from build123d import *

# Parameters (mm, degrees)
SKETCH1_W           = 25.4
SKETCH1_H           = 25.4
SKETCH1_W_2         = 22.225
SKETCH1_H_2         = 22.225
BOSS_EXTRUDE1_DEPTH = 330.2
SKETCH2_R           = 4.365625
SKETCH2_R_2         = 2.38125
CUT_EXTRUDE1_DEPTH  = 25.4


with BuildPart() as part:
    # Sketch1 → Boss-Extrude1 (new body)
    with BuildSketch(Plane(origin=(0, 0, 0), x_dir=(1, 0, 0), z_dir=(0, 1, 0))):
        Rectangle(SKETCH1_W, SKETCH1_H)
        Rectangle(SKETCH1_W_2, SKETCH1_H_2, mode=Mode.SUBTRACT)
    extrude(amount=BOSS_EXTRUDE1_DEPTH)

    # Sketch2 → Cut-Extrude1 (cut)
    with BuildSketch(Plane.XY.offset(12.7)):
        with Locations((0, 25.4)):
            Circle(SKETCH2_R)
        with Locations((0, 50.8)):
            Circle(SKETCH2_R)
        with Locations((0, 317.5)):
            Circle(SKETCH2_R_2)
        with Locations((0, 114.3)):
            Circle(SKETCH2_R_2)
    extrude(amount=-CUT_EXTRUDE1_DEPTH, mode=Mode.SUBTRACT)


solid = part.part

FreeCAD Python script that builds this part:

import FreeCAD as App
import Part
import Sketcher
from FreeCAD import Vector
Q = App.Units.Quantity


def add_polygon(sketch, points):
    """Adds a closed chain of lines whose ends are joined by coincident constraints."""
    first, n = sketch.GeometryCount, len(points)
    for a, b in zip(points, points[1:] + points[:1]):
        sketch.addGeometry(Part.LineSegment(App.Vector(*a, 0), App.Vector(*b, 0)), False)
    for i in range(n):
        sketch.addConstraint(Sketcher.Constraint("Coincident", first + i, 2, first + (i + 1) % n, 1))

doc = App.newDocument("Part")
body = doc.addObject("PartDesign::Body", "Body")

sketch1 = body.newObject("Sketcher::SketchObject", "Sketch")
sketch1.AttachmentSupport = (doc.getObject("XZ_Plane"), [""])
sketch1.MapMode = "FlatFace"
add_polygon(sketch1, [(-13, -13), (-13, 13), (13, 13), (13, -13)])
add_polygon(sketch1, [(11, 11), (-11, 11), (-11, -11), (11, -11)])
sketch1.addConstraint([
    Sketcher.Constraint("Vertical", 0),
    Sketcher.Constraint("Horizontal", 1),
    Sketcher.Constraint("Vertical", 2),
    Sketcher.Constraint("Horizontal", 3),
    Sketcher.Constraint("Horizontal", 4),
    Sketcher.Constraint("Vertical", 5),
    Sketcher.Constraint("Horizontal", 6),
    Sketcher.Constraint("Vertical", 7),
    Sketcher.Constraint("Symmetric", 0, 2, 2, 2, -1, 1),
    Sketcher.Constraint("Symmetric", 4, 2, 6, 2, -1, 1),
    Sketcher.Constraint("Equal", 3, 0),
    Sketcher.Constraint("Equal", 6, 5),
    Sketcher.Constraint("DistanceX", 1, 1, 1, 2, Q("1 in")),
    Sketcher.Constraint("DistanceX", 4, 2, 4, 1, Q("0.875 in")),
])
pad1 = body.newObject("PartDesign::Pad", "Pad")
pad1.Profile = sketch1
pad1.Length = Q("13 in")
pad1.Reversed = True

sketch2 = body.newObject("Sketcher::SketchObject", "Sketch001")
sketch2.AttachmentSupport = (doc.getObject("XY_Plane"), [""])
sketch2.MapMode = "FlatFace"
sketch2.AttachmentOffset = App.Placement(Vector(0, 0, 0.5 * 25.4), App.Rotation())
sketch2.addGeometry([
    Part.Circle(Vector(0, 25.4, 0), Vector(0, 0, 1), 4.4),
    Part.Circle(Vector(0, 50.8, 0), Vector(0, 0, 1), 4.4),
    Part.Circle(Vector(0, 317.5, 0), Vector(0, 0, 1), 2.4),
    Part.Circle(Vector(0, 114.3, 0), Vector(0, 0, 1), 2.4),
], False)
sketch2.addConstraint([
    Sketcher.Constraint("Equal", 0, 1),
    Sketcher.Constraint("Equal", 2, 3),
    Sketcher.Constraint("PointOnObject", 0, 3, -2),
    Sketcher.Constraint("PointOnObject", 1, 3, -2),
    Sketcher.Constraint("PointOnObject", 2, 3, -2),
    Sketcher.Constraint("PointOnObject", 3, 3, -2),
    Sketcher.Constraint("Diameter", 0, Q("0.34375 in")),
    Sketcher.Constraint("Diameter", 2, Q("0.1875 in")),
    Sketcher.Constraint("DistanceY", -1, 1, 0, 3, Q("1 in")),
    Sketcher.Constraint("DistanceY", -1, 1, 1, 3, Q("2 in")),
    Sketcher.Constraint("DistanceY", 3, 3, 2, 3, Q("8 in")),
    Sketcher.Constraint("DistanceY", -1, 1, 2, 3, Q("12.5 in")),
])
pocket1 = body.newObject("PartDesign::Pocket", "Pocket")
pocket1.Profile = sketch2
pocket1.Length = Q("1 in")

doc.recompute()
